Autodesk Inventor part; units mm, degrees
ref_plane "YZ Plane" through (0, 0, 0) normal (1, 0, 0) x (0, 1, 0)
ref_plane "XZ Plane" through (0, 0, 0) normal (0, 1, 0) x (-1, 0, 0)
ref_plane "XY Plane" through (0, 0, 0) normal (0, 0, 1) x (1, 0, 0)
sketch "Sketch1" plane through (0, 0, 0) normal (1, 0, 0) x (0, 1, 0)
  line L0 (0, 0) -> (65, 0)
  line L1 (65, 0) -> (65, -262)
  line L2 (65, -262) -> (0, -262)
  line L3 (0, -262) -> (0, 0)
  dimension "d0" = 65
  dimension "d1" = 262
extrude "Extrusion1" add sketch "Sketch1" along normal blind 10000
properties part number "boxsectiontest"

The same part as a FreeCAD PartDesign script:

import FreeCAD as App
import Part
import Sketcher

V = App.Vector


def add_polygon(sketch, points):
    """Adds a closed chain of lines whose ends are joined by coincident constraints."""
    first, n = sketch.GeometryCount, len(points)
    for a, b in zip(points, points[1:] + points[:1]):
        sketch.addGeometry(Part.LineSegment(App.Vector(*a, 0), App.Vector(*b, 0)), False)
    for i in range(n):
        sketch.addConstraint(Sketcher.Constraint("Coincident", first + i, 2, first + (i + 1) % n, 1))

doc = App.newDocument("Part")
body = doc.addObject("PartDesign::Body", "Body")

# Sketch on YZ plane
sketch1 = body.newObject("Sketcher::SketchObject", "Sketch")
sketch1.AttachmentSupport = (doc.getObject("YZ_Plane"), [""])
sketch1.MapMode = "FlatFace"
add_polygon(sketch1, [(65, 0), (0, 0), (0, -262), (65, -262)])  # lines 0-3
sketch1.addConstraint([
    Sketcher.Constraint("Horizontal", 0),
    Sketcher.Constraint("Vertical", 1),
    Sketcher.Constraint("Horizontal", 2),
    Sketcher.Constraint("Vertical", 3),
    Sketcher.Constraint("Coincident", 0, 2, -1, 1),
    Sketcher.Constraint("DistanceX", 0, 2, 0, 1, 65.0),
    Sketcher.Constraint("DistanceY", 1, 2, 1, 1, 262.0),
])
pad1 = body.newObject("PartDesign::Pad", "Pad")
pad1.Profile = sketch1
pad1.Length = 10000

doc.recompute()
